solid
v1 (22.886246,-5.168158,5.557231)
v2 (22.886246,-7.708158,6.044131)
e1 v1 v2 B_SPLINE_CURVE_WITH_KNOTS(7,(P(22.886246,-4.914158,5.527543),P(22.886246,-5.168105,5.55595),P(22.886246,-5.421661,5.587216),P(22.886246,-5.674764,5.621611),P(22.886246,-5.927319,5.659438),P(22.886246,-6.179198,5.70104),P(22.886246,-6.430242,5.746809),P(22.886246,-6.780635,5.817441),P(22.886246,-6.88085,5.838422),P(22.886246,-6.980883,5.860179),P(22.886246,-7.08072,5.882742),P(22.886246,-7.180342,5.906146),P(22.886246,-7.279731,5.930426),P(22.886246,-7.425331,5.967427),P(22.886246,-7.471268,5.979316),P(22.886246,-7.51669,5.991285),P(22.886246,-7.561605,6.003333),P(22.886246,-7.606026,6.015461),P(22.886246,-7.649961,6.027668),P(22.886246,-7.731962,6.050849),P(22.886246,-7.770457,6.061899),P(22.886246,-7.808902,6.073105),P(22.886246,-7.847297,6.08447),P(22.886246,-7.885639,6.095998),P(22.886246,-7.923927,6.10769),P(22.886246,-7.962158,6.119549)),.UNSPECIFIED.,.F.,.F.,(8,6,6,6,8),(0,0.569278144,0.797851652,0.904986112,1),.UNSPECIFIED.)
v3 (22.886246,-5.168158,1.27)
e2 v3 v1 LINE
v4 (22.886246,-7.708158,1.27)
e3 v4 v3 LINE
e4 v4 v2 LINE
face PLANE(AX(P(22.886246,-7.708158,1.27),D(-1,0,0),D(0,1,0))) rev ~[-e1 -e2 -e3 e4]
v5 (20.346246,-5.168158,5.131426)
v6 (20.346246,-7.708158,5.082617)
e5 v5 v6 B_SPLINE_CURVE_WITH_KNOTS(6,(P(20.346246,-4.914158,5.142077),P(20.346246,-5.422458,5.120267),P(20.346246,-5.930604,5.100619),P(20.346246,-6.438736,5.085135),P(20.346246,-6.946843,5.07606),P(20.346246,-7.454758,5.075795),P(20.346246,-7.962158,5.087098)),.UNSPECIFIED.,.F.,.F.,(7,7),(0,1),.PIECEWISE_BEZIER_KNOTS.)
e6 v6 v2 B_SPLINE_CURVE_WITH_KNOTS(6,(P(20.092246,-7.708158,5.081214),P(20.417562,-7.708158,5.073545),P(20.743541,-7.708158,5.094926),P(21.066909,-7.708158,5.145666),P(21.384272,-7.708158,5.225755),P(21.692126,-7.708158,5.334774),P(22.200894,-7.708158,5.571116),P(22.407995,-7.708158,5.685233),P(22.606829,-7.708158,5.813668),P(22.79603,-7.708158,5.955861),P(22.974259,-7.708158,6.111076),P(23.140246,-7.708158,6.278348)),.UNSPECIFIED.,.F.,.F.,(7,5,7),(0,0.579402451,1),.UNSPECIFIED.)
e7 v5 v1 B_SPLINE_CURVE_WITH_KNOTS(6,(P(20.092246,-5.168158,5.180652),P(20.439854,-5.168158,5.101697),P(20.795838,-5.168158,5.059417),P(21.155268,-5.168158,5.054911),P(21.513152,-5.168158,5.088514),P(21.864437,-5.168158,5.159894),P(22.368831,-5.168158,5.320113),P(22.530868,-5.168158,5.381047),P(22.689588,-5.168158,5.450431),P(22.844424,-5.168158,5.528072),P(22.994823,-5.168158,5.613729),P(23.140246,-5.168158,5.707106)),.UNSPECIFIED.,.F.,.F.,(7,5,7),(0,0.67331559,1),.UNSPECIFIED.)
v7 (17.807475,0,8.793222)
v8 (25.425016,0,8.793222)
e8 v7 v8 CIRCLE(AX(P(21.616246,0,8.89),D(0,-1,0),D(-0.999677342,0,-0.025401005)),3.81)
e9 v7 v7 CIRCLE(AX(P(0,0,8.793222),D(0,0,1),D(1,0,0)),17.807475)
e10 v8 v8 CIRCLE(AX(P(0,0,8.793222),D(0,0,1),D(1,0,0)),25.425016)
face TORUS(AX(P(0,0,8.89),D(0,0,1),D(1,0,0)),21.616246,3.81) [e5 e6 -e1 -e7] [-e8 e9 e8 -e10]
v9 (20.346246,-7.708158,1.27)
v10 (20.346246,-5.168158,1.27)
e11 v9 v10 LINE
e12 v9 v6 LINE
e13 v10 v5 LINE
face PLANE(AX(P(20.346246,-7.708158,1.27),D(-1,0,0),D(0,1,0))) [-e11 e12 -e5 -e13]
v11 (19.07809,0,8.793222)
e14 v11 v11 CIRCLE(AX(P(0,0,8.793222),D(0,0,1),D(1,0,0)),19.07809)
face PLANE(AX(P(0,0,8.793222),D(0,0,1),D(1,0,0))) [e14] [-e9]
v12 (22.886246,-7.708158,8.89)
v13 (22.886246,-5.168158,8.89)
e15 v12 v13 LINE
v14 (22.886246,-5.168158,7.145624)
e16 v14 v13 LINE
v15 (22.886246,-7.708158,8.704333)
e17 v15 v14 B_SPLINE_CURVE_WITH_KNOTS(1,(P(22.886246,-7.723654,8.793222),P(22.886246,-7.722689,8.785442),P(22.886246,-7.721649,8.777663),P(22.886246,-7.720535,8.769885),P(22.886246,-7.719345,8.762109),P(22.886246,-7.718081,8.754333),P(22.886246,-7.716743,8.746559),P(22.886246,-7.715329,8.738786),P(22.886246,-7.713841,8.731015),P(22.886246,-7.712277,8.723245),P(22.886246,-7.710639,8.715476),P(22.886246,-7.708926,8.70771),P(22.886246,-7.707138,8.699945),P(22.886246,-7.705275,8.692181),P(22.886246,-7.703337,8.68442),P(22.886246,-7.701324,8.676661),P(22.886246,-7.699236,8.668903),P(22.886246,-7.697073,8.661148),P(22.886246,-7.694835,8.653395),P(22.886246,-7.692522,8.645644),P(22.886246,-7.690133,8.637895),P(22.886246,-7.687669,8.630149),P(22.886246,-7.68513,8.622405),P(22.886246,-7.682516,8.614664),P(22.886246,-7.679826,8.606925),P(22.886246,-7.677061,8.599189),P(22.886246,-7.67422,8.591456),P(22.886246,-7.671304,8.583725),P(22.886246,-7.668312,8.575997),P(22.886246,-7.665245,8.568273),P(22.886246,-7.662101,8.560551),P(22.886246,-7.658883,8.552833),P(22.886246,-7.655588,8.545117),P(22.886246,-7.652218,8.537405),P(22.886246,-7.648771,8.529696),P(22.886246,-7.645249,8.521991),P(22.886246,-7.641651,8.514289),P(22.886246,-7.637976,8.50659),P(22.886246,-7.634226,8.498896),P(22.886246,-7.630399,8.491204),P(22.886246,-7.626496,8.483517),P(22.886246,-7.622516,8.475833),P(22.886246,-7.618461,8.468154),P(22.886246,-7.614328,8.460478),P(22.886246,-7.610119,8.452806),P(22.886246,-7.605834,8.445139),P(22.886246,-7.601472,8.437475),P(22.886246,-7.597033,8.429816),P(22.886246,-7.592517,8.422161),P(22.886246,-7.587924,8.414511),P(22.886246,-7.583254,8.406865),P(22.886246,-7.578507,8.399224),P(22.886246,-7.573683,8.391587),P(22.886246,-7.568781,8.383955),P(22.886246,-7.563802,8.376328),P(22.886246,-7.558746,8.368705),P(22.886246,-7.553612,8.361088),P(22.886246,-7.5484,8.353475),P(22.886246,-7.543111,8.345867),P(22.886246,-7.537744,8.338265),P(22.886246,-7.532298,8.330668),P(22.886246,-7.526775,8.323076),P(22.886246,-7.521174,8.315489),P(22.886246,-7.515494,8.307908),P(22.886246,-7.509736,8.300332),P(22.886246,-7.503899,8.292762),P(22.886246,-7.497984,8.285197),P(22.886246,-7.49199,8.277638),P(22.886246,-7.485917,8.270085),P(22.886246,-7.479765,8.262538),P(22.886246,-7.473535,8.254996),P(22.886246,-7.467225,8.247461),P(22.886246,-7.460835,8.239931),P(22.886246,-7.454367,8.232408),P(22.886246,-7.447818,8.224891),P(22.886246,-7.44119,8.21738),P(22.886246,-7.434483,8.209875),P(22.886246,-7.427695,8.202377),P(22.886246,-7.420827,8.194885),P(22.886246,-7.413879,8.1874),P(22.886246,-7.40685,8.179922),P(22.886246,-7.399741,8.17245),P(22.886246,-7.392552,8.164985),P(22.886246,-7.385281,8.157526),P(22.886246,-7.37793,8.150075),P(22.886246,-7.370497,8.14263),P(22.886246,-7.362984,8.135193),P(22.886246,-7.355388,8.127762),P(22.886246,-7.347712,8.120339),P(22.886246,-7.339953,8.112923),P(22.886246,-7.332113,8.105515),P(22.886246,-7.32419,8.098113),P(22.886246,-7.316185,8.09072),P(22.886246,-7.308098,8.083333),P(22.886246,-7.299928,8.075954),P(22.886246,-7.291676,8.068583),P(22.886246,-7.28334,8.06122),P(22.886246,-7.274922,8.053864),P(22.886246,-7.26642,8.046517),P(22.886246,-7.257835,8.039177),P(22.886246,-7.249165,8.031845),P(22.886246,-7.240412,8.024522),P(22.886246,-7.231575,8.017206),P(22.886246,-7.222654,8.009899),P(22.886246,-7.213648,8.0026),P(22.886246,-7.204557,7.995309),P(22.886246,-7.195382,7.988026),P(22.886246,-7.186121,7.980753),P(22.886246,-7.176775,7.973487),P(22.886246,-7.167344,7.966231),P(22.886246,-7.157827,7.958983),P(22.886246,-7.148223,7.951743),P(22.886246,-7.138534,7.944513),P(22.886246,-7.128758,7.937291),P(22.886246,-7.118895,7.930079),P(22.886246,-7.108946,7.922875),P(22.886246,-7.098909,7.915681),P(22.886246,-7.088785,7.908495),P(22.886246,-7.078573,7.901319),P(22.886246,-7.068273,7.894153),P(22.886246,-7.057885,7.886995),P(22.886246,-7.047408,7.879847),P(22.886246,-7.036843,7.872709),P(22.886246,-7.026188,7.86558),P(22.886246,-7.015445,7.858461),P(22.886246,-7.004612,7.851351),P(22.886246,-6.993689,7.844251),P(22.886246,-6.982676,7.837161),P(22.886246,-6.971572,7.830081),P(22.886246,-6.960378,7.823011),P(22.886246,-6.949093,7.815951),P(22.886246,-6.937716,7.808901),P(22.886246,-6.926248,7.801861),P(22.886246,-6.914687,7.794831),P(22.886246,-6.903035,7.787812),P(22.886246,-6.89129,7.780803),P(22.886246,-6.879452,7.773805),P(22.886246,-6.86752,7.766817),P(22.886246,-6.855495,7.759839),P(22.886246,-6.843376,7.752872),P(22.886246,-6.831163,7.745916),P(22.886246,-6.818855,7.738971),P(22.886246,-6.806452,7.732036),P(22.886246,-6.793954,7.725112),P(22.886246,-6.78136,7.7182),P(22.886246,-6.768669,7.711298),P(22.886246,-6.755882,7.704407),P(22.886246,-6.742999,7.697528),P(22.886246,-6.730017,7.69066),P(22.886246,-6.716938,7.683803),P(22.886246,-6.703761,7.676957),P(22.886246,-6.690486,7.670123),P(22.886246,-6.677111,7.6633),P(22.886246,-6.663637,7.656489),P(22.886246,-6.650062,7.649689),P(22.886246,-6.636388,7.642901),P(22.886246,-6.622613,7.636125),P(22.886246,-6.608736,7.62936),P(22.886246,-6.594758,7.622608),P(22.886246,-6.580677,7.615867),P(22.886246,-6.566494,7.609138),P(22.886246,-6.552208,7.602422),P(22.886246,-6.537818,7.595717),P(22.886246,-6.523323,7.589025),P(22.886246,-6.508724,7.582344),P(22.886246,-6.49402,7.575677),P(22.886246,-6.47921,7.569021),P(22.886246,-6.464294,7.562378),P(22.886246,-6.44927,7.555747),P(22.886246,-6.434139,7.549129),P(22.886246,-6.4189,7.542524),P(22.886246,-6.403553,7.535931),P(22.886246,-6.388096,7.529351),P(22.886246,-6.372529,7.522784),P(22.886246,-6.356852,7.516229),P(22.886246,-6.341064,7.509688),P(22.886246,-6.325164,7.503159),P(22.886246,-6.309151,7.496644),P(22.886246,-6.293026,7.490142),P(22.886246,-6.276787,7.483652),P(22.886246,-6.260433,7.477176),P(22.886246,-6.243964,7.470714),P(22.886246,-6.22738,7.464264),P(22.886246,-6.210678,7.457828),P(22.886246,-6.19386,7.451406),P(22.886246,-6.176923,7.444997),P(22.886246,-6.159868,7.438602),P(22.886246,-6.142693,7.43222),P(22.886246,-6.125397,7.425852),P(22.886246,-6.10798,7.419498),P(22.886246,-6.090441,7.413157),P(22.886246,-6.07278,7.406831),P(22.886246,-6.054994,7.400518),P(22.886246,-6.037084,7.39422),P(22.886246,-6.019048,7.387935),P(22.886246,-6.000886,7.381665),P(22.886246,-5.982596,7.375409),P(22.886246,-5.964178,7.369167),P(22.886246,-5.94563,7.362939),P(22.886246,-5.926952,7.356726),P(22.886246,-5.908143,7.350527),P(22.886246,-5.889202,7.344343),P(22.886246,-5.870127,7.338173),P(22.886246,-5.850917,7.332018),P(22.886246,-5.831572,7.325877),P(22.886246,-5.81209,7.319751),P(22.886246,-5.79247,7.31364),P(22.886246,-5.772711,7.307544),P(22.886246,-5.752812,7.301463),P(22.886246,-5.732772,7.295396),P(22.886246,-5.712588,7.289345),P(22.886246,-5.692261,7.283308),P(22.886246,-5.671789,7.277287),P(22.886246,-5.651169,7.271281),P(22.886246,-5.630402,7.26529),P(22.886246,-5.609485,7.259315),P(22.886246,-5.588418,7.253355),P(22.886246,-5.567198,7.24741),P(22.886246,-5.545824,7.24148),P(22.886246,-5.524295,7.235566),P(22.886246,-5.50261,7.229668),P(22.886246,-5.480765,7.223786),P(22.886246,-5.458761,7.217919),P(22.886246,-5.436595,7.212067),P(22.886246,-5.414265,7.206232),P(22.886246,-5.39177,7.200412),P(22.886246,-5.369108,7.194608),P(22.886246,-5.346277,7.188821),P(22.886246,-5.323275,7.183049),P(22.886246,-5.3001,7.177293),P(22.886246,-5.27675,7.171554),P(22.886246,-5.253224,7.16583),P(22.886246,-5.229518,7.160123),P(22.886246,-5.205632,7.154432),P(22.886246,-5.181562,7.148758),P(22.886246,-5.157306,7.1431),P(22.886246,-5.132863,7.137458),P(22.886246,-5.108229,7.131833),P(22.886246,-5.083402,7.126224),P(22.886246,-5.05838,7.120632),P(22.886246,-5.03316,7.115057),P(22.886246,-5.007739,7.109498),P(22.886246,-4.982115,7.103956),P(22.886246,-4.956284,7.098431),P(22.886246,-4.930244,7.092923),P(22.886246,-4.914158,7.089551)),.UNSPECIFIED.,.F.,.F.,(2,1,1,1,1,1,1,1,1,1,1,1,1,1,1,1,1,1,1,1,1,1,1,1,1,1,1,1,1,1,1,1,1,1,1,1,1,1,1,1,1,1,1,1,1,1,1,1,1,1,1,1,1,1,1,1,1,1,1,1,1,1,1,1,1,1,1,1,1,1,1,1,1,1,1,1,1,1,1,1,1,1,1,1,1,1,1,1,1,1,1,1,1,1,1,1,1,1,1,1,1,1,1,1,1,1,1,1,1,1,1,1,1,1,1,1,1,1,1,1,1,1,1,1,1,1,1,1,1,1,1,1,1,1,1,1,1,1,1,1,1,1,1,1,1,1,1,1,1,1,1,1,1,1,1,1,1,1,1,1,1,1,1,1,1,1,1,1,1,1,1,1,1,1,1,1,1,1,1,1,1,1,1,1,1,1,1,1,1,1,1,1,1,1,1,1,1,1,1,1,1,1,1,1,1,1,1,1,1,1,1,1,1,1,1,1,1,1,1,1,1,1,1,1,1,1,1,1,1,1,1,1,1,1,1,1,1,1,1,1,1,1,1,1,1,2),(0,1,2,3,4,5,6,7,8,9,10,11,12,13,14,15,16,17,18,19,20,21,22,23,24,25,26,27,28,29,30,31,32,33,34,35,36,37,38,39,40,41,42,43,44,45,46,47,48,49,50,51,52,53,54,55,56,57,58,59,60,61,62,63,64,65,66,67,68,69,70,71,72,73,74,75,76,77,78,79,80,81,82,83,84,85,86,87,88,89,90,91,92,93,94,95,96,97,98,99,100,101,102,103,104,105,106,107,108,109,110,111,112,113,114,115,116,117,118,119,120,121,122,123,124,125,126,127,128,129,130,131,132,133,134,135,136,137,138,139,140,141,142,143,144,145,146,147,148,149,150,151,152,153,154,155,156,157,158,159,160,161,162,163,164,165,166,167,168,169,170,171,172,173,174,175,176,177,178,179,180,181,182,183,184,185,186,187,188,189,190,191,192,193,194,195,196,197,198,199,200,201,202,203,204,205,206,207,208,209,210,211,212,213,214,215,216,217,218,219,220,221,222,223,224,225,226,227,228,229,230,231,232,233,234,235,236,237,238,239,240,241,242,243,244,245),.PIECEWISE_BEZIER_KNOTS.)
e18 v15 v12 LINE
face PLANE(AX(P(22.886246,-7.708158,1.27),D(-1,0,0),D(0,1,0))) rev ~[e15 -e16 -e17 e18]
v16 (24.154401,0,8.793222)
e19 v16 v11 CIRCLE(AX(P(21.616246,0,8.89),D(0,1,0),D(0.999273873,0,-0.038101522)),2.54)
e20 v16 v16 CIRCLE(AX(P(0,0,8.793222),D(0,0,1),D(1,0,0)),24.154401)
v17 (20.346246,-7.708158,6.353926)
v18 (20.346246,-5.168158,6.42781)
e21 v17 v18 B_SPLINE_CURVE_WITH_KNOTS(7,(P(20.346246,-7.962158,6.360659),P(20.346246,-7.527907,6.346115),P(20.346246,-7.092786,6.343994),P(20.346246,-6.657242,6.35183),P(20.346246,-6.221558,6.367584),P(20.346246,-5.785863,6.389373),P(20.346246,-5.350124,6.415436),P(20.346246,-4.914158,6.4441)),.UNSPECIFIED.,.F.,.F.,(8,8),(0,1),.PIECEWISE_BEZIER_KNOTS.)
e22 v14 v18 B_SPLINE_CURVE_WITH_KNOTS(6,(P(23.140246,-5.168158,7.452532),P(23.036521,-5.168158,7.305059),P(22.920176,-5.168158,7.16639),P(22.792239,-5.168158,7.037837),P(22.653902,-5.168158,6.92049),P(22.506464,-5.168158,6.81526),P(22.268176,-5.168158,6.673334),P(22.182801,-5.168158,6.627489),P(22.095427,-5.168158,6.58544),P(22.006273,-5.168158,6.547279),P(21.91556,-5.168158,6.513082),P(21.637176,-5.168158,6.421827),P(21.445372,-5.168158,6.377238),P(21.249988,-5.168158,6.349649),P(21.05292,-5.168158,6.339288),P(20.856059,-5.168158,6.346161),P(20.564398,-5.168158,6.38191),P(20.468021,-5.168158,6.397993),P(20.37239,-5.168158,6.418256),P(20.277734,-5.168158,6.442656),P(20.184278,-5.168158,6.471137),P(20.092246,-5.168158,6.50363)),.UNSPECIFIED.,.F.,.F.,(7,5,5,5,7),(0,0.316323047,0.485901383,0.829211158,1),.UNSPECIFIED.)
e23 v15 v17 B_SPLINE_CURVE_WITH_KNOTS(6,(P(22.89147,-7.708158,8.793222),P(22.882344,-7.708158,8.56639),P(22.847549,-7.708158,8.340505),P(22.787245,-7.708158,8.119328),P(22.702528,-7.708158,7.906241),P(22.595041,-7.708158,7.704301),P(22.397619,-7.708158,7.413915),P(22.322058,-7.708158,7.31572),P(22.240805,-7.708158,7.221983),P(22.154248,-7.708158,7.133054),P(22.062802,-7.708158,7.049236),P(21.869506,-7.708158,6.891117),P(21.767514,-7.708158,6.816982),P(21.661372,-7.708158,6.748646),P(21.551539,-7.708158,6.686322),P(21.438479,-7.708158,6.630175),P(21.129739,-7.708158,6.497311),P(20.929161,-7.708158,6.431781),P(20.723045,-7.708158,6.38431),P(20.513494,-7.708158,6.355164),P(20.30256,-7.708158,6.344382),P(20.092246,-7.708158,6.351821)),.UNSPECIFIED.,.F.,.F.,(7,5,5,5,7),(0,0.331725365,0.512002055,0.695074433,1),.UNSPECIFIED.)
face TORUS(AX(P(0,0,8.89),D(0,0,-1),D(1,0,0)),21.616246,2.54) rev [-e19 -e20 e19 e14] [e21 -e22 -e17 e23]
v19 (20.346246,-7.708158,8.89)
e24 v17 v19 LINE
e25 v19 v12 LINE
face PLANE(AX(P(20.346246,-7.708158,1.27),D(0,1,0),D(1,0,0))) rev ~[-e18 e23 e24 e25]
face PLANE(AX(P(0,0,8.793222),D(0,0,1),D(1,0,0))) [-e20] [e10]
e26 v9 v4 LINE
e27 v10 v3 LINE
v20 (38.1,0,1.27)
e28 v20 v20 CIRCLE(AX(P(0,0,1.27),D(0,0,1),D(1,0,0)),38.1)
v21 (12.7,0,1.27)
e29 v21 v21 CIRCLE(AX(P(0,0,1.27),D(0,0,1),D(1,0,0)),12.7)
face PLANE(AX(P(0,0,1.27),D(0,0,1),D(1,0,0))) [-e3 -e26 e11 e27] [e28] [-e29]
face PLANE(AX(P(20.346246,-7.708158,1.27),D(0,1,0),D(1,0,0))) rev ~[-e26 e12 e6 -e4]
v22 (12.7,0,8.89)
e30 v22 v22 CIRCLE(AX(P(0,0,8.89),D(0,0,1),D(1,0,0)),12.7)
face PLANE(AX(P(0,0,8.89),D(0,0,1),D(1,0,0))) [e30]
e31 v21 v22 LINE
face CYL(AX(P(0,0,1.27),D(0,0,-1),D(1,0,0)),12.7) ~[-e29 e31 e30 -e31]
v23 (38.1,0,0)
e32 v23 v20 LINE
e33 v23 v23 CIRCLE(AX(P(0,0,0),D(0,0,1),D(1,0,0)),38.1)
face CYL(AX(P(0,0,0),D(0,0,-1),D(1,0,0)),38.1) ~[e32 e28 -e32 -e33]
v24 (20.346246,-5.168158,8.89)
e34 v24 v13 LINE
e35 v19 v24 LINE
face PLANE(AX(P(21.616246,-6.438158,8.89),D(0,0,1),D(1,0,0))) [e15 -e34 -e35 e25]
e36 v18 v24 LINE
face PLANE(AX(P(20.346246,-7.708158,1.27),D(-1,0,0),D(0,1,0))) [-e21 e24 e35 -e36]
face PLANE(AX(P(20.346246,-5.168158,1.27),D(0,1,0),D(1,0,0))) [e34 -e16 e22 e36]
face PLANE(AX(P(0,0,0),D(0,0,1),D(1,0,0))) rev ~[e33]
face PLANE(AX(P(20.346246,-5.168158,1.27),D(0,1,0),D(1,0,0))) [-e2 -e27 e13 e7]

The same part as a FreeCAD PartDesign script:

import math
import FreeCAD as App
import Part
import Sketcher

V = App.Vector
Q = App.Units.Quantity

doc = App.newDocument("Part")
body = doc.addObject("PartDesign::Body", "Body")

sketch1 = body.newObject("Sketcher::SketchObject", "Sketch")
sketch1.AttachmentSupport = (doc.getObject("XY_Plane"), [""])
sketch1.MapMode = "FlatFace"
sketch1.addGeometry(Part.Circle(V(0, 0, 0), V(0, 0, 1), 38.1), False)
sketch1.addConstraint([
    Sketcher.Constraint("Coincident", 0, 3, -1, 1),
    Sketcher.Constraint("Diameter", 0, Q("3 in")),
])
pad1 = body.newObject("PartDesign::Pad", "Pad")
pad1.Profile = sketch1
pad1.Length = Q("0.05 in")

sketch2 = body.newObject("Sketcher::SketchObject", "Sketch001")
sketch2.AttachmentSupport = (doc.getObject("XY_Plane"), [""])
sketch2.MapMode = "FlatFace"
sketch2.AttachmentOffset = App.Placement(V(0, 0, 0.05 * 25.4), App.Rotation())
sketch2.addGeometry([
    Part.LineSegment(V(20.346246, -5.168158, 0), V(20.346246, -7.708158, 0)),
    Part.LineSegment(V(20.346246, -7.708158, 0), V(22.886246, -7.708158, 0)),
    Part.LineSegment(V(22.886246, -7.708158, 0), V(22.886246, -5.168158, 0)),
    Part.LineSegment(V(22.886246, -5.168158, 0), V(20.346246, -5.168158, 0)),
    Part.Circle(V(0, 0, 0), V(0, 0, 1), 12.7),
], False)
sketch2.addConstraint([
    Sketcher.Constraint("Coincident", 0, 2, 1, 1),
    Sketcher.Constraint("Coincident", 1, 2, 2, 1),
    Sketcher.Constraint("Coincident", 2, 2, 3, 1),
    Sketcher.Constraint("Coincident", 3, 2, 0, 1),
    Sketcher.Constraint("Vertical", 0),
    Sketcher.Constraint("Horizontal", 1),
    Sketcher.Constraint("Vertical", 2),
    Sketcher.Constraint("Horizontal", 3),
    Sketcher.Constraint("Coincident", 4, 3, -1, 1),
    Sketcher.Constraint("Equal", 3, 0),
    Sketcher.Constraint("Diameter", 4, Q("1 in")),
    Sketcher.Constraint("DistanceX", 1, 1, 1, 2, Q("0.1 in")),
    Sketcher.Constraint("DistanceX", -1, 1, 0, 2, 20.346246),
    Sketcher.Constraint("DistanceY", 0, 2, -1, 1, 7.708158),
])
pad2 = body.newObject("PartDesign::Pad", "Pad001")
pad2.Profile = sketch2
pad2.Length = Q("0.3 in")

sketch3 = body.newObject("Sketcher::SketchObject", "Sketch002")
sketch3.AttachmentSupport = (doc.getObject("XZ_Plane"), [""])
sketch3.MapMode = "FlatFace"
sketch3.addGeometry([
    Part.LineSegment(V(19.07809, 8.793222, 0), V(17.807475, 8.793222, 0)),
    Part.ArcOfCircle(Part.Circle(V(21.616246, 8.89, 0), V(0, 0, 1), 3.81), math.radians(-178.544473), math.radians(-1.455527)),
    Part.LineSegment(V(25.425016, 8.793222, 0), V(24.154401, 8.793222, 0)),
    Part.ArcOfCircle(Part.Circle(V(21.616246, 8.89, 0), V(0, 0, 1), 2.54), math.radians(-177.816415), math.radians(-2.183585)),
], False)
sketch3.addConstraint([
    Sketcher.Constraint("Coincident", 0, 2, 1, 1),
    Sketcher.Constraint("Coincident", 1, 2, 2, 1),
    Sketcher.Constraint("Coincident", 2, 2, 3, 2),
    Sketcher.Constraint("Coincident", 3, 1, 0, 1),
    Sketcher.Constraint("Horizontal", 0),
    Sketcher.Constraint("Horizontal", 2),
    Sketcher.Constraint("Coincident", 3, 3, 1, 3),
    Sketcher.Constraint("Horizontal", 0, 2, 1, 2),
    Sketcher.Constraint("Radius", 3, Q("0.1 in")),
    Sketcher.Constraint("Radius", 1, Q("0.15 in")),
    Sketcher.Constraint("DistanceY", -1, 1, 1, 3, Q("0.35 in")),
    Sketcher.Constraint("DistanceX", -1, 1, 2, 2, 24.154401),
    Sketcher.Constraint("DistanceX", 0, 2, 0, 1, 1.270615),
])
revolution = body.newObject("PartDesign::Revolution", "Revolution")
revolution.Profile = sketch3
revolution.ReferenceAxis = (sketch3, ["V_Axis"])
revolution.Angle = 360

doc.recompute()
